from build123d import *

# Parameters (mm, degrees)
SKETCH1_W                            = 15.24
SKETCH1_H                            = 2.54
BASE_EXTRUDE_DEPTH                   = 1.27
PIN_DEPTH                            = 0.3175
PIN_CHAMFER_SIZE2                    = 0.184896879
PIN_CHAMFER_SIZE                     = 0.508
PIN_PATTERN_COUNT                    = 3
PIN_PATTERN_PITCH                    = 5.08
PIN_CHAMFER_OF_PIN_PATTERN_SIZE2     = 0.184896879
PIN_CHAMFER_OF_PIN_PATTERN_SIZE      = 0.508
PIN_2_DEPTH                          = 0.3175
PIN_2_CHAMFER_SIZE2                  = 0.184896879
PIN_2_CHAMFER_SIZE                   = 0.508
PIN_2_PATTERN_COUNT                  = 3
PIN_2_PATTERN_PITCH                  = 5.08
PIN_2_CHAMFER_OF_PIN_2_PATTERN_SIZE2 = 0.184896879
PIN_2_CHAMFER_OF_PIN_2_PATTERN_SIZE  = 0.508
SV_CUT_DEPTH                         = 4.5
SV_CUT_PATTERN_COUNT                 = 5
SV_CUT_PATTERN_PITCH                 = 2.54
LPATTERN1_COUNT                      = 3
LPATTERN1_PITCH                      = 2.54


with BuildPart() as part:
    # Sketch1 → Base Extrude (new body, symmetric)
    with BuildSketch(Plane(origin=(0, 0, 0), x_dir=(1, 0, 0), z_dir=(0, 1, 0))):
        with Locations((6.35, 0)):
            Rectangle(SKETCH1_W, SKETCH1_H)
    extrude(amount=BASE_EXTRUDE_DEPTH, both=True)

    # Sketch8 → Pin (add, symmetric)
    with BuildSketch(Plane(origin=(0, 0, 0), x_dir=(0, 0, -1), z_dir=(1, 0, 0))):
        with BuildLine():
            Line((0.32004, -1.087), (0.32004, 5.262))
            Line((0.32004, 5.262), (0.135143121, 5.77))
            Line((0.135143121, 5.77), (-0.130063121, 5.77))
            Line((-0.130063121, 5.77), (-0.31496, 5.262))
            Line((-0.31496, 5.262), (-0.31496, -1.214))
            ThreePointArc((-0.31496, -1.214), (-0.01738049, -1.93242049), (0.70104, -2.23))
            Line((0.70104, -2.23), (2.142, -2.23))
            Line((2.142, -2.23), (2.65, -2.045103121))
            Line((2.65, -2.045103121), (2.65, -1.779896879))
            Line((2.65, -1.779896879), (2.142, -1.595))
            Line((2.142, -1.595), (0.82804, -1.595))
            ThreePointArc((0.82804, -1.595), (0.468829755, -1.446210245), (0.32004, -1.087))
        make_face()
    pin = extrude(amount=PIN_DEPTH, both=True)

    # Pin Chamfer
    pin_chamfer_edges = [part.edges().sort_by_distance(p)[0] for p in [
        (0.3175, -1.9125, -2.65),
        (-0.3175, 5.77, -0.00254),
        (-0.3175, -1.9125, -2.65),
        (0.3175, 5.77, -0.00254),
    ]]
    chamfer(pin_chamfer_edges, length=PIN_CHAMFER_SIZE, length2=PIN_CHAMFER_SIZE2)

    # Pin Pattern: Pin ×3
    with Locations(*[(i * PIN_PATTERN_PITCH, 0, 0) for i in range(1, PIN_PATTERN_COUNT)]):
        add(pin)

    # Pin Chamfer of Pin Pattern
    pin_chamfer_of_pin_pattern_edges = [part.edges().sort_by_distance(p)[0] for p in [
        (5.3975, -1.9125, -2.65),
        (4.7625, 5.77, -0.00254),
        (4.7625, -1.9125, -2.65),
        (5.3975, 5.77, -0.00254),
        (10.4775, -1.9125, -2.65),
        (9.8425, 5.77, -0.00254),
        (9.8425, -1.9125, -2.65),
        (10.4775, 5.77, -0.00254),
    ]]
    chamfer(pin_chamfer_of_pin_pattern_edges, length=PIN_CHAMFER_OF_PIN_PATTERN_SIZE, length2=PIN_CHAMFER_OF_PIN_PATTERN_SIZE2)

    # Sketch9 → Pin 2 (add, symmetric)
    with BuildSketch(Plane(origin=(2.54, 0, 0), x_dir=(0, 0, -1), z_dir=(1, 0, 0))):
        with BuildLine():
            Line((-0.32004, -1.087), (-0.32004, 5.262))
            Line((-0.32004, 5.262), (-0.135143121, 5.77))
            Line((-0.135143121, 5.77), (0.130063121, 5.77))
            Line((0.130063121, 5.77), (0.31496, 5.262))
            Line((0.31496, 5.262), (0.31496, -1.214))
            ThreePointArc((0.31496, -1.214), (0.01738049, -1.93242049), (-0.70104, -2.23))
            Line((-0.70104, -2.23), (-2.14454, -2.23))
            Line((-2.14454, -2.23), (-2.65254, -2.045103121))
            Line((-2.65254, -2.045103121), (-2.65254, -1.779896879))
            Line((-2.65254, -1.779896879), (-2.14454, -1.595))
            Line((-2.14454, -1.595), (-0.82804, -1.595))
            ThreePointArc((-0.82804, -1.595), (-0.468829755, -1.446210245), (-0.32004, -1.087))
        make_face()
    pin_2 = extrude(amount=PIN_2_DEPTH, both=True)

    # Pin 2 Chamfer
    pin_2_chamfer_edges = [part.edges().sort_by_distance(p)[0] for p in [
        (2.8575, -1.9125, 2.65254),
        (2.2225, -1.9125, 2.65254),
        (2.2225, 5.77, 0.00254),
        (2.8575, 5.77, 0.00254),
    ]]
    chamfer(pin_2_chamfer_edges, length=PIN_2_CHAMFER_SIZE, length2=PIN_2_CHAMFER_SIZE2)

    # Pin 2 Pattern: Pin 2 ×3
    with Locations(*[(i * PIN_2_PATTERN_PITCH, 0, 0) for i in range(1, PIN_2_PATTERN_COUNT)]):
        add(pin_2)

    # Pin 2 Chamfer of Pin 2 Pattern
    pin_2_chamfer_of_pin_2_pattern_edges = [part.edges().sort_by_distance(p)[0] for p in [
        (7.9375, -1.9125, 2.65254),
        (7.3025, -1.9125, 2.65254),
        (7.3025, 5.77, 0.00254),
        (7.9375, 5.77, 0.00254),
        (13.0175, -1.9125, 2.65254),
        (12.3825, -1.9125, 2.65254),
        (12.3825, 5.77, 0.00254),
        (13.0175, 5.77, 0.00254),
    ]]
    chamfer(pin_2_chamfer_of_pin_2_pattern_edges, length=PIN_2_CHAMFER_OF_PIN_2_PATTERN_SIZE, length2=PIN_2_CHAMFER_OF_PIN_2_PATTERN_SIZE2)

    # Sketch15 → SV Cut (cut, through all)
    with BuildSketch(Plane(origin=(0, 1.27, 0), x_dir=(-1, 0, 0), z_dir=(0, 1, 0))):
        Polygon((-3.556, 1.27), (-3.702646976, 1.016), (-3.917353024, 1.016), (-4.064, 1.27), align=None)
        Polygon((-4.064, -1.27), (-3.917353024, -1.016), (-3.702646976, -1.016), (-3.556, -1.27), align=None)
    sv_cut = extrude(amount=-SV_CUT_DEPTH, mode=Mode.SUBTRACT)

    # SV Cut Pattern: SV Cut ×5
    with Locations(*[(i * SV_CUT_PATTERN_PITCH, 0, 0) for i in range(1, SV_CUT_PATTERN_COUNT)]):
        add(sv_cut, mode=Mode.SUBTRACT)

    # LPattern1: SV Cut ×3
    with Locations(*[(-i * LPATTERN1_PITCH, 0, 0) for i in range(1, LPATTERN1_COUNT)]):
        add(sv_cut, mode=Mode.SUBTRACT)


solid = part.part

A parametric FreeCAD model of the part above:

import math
import FreeCAD as App
import Part
import Sketcher

V = App.Vector
Q = App.Units.Quantity


def edges_at(feature, points):
    """Names of the edges that pass closest to the given points."""
    edges = feature.Shape.Edges
    near = lambda p: min(range(len(edges)), key=lambda i: edges[i].distToShape(Part.Vertex(*p))[0])
    return sorted({f"Edge{near(p) + 1}" for p in points})


def add_polygon(sketch, points):
    """Adds a closed chain of lines whose ends are joined by coincident constraints."""
    first, n = sketch.GeometryCount, len(points)
    for a, b in zip(points, points[1:] + points[:1]):
        sketch.addGeometry(Part.LineSegment(App.Vector(*a, 0), App.Vector(*b, 0)), False)
    for i in range(n):
        sketch.addConstraint(Sketcher.Constraint("Coincident", first + i, 2, first + (i + 1) % n, 1))

doc = App.newDocument("Part")
body = doc.addObject("PartDesign::Body", "Body")

# Sketch on XZ plane
sketch1 = body.newObject("Sketcher::SketchObject", "Sketch")
sketch1.AttachmentSupport = (doc.getObject("XZ_Plane"), [""])
sketch1.MapMode = "FlatFace"
add_polygon(sketch1, [(-1.3, -1.3), (-1.3, 1.3), (14, 1.3), (14, -1.3)])  # lines 0-3
sketch1.addConstraint([
    Sketcher.Constraint("Vertical", 0),
    Sketcher.Constraint("Horizontal", 1),
    Sketcher.Constraint("Vertical", 2),
    Sketcher.Constraint("Horizontal", 3),
    Sketcher.Constraint("DistanceX", 1, 1, 1, 2, Q("0.6 in")),
    Sketcher.Constraint("DistanceY", 0, 1, 0, 2, Q("0.1 in")),
    Sketcher.Constraint("DistanceX", 0, 2, -1, 1, Q("0.05 in")),
    Sketcher.Constraint("DistanceY", -1, 1, 0, 2, Q("0.05 in")),
])
pad1 = body.newObject("PartDesign::Pad", "Pad")
pad1.Profile = sketch1
pad1.Length = Q("0.1 in")
pad1.Midplane = True

# Sketch on YZ plane
sketch2 = body.newObject("Sketcher::SketchObject", "Sketch001")
sketch2.AttachmentSupport = (doc.getObject("YZ_Plane"), [""])
sketch2.MapMode = "FlatFace"
sketch2.addGeometry([
    Part.LineSegment(V(-1.09, -0.32, 0), V(5.26, -0.32, 0)),  # 0
    Part.LineSegment(V(5.26, -0.32, 0), V(5.77, -0.14, 0)),  # 1
    Part.LineSegment(V(5.77, -0.14, 0), V(5.77, 0.13, 0)),  # 2
    Part.LineSegment(V(5.77, 0.13, 0), V(5.26, 0.31, 0)),  # 3
    Part.LineSegment(V(5.26, 0.31, 0), V(-1.21, 0.31, 0)),  # 4
    Part.ArcOfCircle(Part.Circle(V(-1.21, -0.7, 0), V(0, 0, 1), 1.02), math.radians(90), math.radians(180)),  # 5
    Part.LineSegment(V(-2.23, -0.7, 0), V(-2.23, -2.14, 0)),  # 6
    Part.LineSegment(V(-2.23, -2.14, 0), V(-2.05, -2.65, 0)),  # 7
    Part.LineSegment(V(-2.05, -2.65, 0), V(-1.78, -2.65, 0)),  # 8
    Part.LineSegment(V(-1.78, -2.65, 0), V(-1.59, -2.14, 0)),  # 9
    Part.LineSegment(V(-1.59, -2.14, 0), V(-1.59, -0.83, 0)),  # 10
    Part.ArcOfCircle(Part.Circle(V(-1.09, -0.83, 0), V(0, 0, 1), 0.51), math.radians(90), math.radians(180)),  # 11
], False)
sketch2.addConstraint([
    Sketcher.Constraint("Coincident", 0, 2, 1, 1),
    Sketcher.Constraint("Coincident", 1, 2, 2, 1),
    Sketcher.Constraint("Coincident", 2, 2, 3, 1),
    Sketcher.Constraint("Coincident", 3, 2, 4, 1),
    Sketcher.Constraint("Tangent", 4, 2, 5, 1),
    Sketcher.Constraint("Tangent", 5, 2, 6, 1),
    Sketcher.Constraint("Coincident", 6, 2, 7, 1),
    Sketcher.Constraint("Coincident", 7, 2, 8, 1),
    Sketcher.Constraint("Coincident", 8, 2, 9, 1),
    Sketcher.Constraint("Coincident", 9, 2, 10, 1),
    Sketcher.Constraint("Tangent", 10, 2, 11, 2),
    Sketcher.Constraint("Tangent", 11, 1, 0, 1),
    Sketcher.Constraint("Horizontal", 0),
    Sketcher.Constraint("Vertical", 2),
    Sketcher.Constraint("Horizontal", 4),
    Sketcher.Constraint("Vertical", 6),
    Sketcher.Constraint("Horizontal", 8),
    Sketcher.Constraint("Vertical", 10),
    Sketcher.Constraint("Perpendicular", 1, 7),
    Sketcher.Constraint("Perpendicular", 3, 9),
    Sketcher.Constraint("Horizontal", 6, 2, 9, 2),
    Sketcher.Constraint("Vertical", 0, 2, 3, 2),
    Sketcher.Constraint("Equal", 8, 2),
    Sketcher.Constraint("Equal", 1, 3),
    Sketcher.Constraint("Equal", 3, 7),
    Sketcher.Constraint("Radius", 5, Q("0.04 in")),
    Sketcher.Constraint("Radius", 11, Q("0.02 in")),
    Sketcher.Constraint("Angle", 1, Q("20 deg")),
    Sketcher.Constraint("DistanceX", 0, 2, 1, 2, Q("0.02 in")),
    Sketcher.Constraint("DistanceX", 5, 3, 11, 3, Q("0.005 in")),
    Sketcher.Constraint("DistanceX", 0, 1, 0, 2, 6.349),
    Sketcher.Constraint("DistanceY", 5, 3, -1, 1, Q("0.0276 in")),
    Sketcher.Constraint("DistanceY", 6, 2, 6, 1, 1.44096),
    Sketcher.Constraint("DistanceX", 5, 3, -1, 1, 1.214),
])
pad2 = body.newObject("PartDesign::Pad", "Pad001")
pad2.Profile = sketch2
pad2.Length = Q("0.025 in")
pad2.Midplane = True
doc.recompute()

chamfer = body.newObject("PartDesign::Chamfer", "Chamfer")
chamfer.Base = (pad2, edges_at(pad2, [
    (0.318, -1.913, -2.65),
    (-0.318, 5.77, -0.003),
    (-0.318, -1.913, -2.65),
    (0.318, 5.77, -0.003),
]))
chamfer.ChamferType = "Two distances"
chamfer.Size = Q("0.02 in")
chamfer.Size2 = 0.184897
doc.recompute()

linearpattern = body.newObject("PartDesign::LinearPattern", "LinearPattern")
linearpattern.Originals = [pad2]
linearpattern.Direction = (doc.getObject("X_Axis"), [""])
linearpattern.Mode = "offset"
linearpattern.Offset = Q("0.2 in")
linearpattern.Occurrences = 3
body.Tip = linearpattern
doc.recompute()

chamfer2 = body.newObject("PartDesign::Chamfer", "Chamfer001")
chamfer2.Base = (linearpattern, edges_at(linearpattern, [
    (5.397, -1.913, -2.65),
    (4.763, 5.77, -0.003),
    (4.763, -1.913, -2.65),
    (5.397, 5.77, -0.003),
    (10.477, -1.913, -2.65),
    (9.842, 5.77, -0.003),
    (9.842, -1.913, -2.65),
    (10.477, 5.77, -0.003),
]))
chamfer2.ChamferType = "Two distances"
chamfer2.Size = Q("0.02 in")
chamfer2.Size2 = 0.184897

# Sketch on YZ plane
sketch3 = body.newObject("Sketcher::SketchObject", "Sketch002")
sketch3.AttachmentSupport = (doc.getObject("YZ_Plane"), [""])
sketch3.MapMode = "FlatFace"
sketch3.AttachmentOffset = App.Placement(V(0, 0, 0.1 * 25.4), App.Rotation())
sketch3.addGeometry([
    Part.LineSegment(V(5.26, 0.32, 0), V(-1.09, 0.32, 0)),  # 0
    Part.ArcOfCircle(Part.Circle(V(-1.09, 0.83, 0), V(0, 0, 1), 0.51), math.radians(180), math.radians(270)),  # 1
    Part.LineSegment(V(-1.59, 0.83, 0), V(-1.59, 2.14, 0)),  # 2
    Part.LineSegment(V(-1.59, 2.14, 0), V(-1.78, 2.65, 0)),  # 3
    Part.LineSegment(V(-1.78, 2.65, 0), V(-2.05, 2.65, 0)),  # 4
    Part.LineSegment(V(-2.05, 2.65, 0), V(-2.23, 2.14, 0)),  # 5
    Part.LineSegment(V(-2.23, 2.14, 0), V(-2.23, 0.7, 0)),  # 6
    Part.ArcOfCircle(Part.Circle(V(-1.21, 0.7, 0), V(0, 0, 1), 1.02), math.radians(180), math.radians(270)),  # 7
    Part.LineSegment(V(-1.21, -0.31, 0), V(5.26, -0.31, 0)),  # 8
    Part.LineSegment(V(5.26, -0.31, 0), V(5.77, -0.13, 0)),  # 9
    Part.LineSegment(V(5.77, -0.13, 0), V(5.77, 0.14, 0)),  # 10
    Part.LineSegment(V(5.77, 0.14, 0), V(5.26, 0.32, 0)),  # 11
], False)
sketch3.addConstraint([
    Sketcher.Constraint("Tangent", 0, 2, 1, 2),
    Sketcher.Constraint("Tangent", 1, 1, 2, 1),
    Sketcher.Constraint("Coincident", 2, 2, 3, 1),
    Sketcher.Constraint("Coincident", 3, 2, 4, 1),
    Sketcher.Constraint("Coincident", 4, 2, 5, 1),
    Sketcher.Constraint("Coincident", 5, 2, 6, 1),
    Sketcher.Constraint("Tangent", 6, 2, 7, 1),
    Sketcher.Constraint("Tangent", 7, 2, 8, 1),
    Sketcher.Constraint("Coincident", 8, 2, 9, 1),
    Sketcher.Constraint("Coincident", 9, 2, 10, 1),
    Sketcher.Constraint("Coincident", 10, 2, 11, 1),
    Sketcher.Constraint("Coincident", 11, 2, 0, 1),
    Sketcher.Constraint("Horizontal", 0),
    Sketcher.Constraint("Vertical", 2),
    Sketcher.Constraint("Horizontal", 4),
    Sketcher.Constraint("Vertical", 6),
    Sketcher.Constraint("Horizontal", 8),
    Sketcher.Constraint("Vertical", 10),
    Sketcher.Constraint("Perpendicular", 3, 9),
    Sketcher.Constraint("Perpendicular", 5, 11),
    Sketcher.Constraint("Horizontal", 2, 2, 5, 2),
    Sketcher.Constraint("Vertical", 8, 2, 11, 2),
    Sketcher.Constraint("Equal", 4, 10),
    Sketcher.Constraint("Equal", 3, 5),
    Sketcher.Constraint("Equal", 5, 9),
    Sketcher.Constraint("Radius", 1, Q("0.02 in")),
    Sketcher.Constraint("Radius", 7, Q("0.04 in")),
    Sketcher.Constraint("Angle", 3, Q("110 deg")),
    Sketcher.Constraint("DistanceY", 2, 2, 3, 2, Q("0.02 in")),
    Sketcher.Constraint("DistanceX", 7, 3, 1, 3, Q("0.005 in")),
    Sketcher.Constraint("DistanceX", 0, 2, 0, 1, 6.349),
    Sketcher.Constraint("DistanceY", 2, 1, 2, 2, 1.3165),
    Sketcher.Constraint("DistanceY", -1, 1, 1, 3, Q("0.0326 in")),
    Sketcher.Constraint("DistanceX", 1, 3, -1, 1, 1.087),
])
pad3 = body.newObject("PartDesign::Pad", "Pad002")
pad3.Profile = sketch3
pad3.Length = Q("0.025 in")
pad3.Midplane = True
doc.recompute()

chamfer3 = body.newObject("PartDesign::Chamfer", "Chamfer002")
chamfer3.Base = (pad3, edges_at(pad3, [
    (2.857, -1.913, 2.653),
    (2.223, -1.913, 2.653),
    (2.223, 5.77, 0.003),
    (2.857, 5.77, 0.003),
]))
chamfer3.ChamferType = "Two distances"
chamfer3.Size = Q("0.02 in")
chamfer3.Size2 = 0.184897
doc.recompute()

linearpattern2 = body.newObject("PartDesign::LinearPattern", "LinearPattern001")
linearpattern2.Originals = [pad3]
linearpattern2.Direction = (doc.getObject("X_Axis"), [""])
linearpattern2.Mode = "offset"
linearpattern2.Offset = Q("0.2 in")
linearpattern2.Occurrences = 3
body.Tip = linearpattern2
doc.recompute()

chamfer4 = body.newObject("PartDesign::Chamfer", "Chamfer003")
chamfer4.Base = (linearpattern2, edges_at(linearpattern2, [
    (7.938, -1.913, 2.653),
    (7.303, -1.913, 2.653),
    (7.303, 5.77, 0.003),
    (7.938, 5.77, 0.003),
    (13.018, -1.913, 2.653),
    (12.383, -1.913, 2.653),
    (12.383, 5.77, 0.003),
    (13.018, 5.77, 0.003),
]))
chamfer4.ChamferType = "Two distances"
chamfer4.Size = Q("0.02 in")
chamfer4.Size2 = 0.184897

# Sketch on XZ plane
sketch4 = body.newObject("Sketcher::SketchObject", "Sketch003")
sketch4.AttachmentSupport = (doc.getObject("XZ_Plane"), [""])
sketch4.MapMode = "FlatFace"
sketch4.AttachmentOffset = App.Placement(V(0, 0, -0.05 * 25.4), App.Rotation())
add_polygon(sketch4, [(3.7, 1.02), (3.56, 1.27), (4.06, 1.27), (3.92, 1.02)])  # lines 0-3
add_polygon(sketch4, [(3.92, -1.02), (4.06, -1.27), (3.56, -1.27), (3.7, -1.02)])  # lines 4-7
sketch4.addConstraint([
    Sketcher.Constraint("Horizontal", 1),
    Sketcher.Constraint("Horizontal", 3),
    Sketcher.Constraint("Horizontal", 5),
    Sketcher.Constraint("Horizontal", 7),
    Sketcher.Constraint("Symmetric", 1, 2, 4, 2, -1),
    Sketcher.Constraint("Symmetric", 3, 2, 6, 2, -1),
    Sketcher.Constraint("Parallel", 0, 4),
    Sketcher.Constraint("Parallel", 2, 6),
    Sketcher.Constraint("Vertical", 0, 2, 5, 2),
    Sketcher.Constraint("Angle", 0, Q("120.000001 deg")),
    Sketcher.Constraint("DistanceX", 1, 1, 1, 2, Q("0.02 in")),
    Sketcher.Constraint("DistanceY", 4, 2, 1, 2, Q("0.1 in")),
    Sketcher.Constraint("DistanceX", -1, 1, 0, 2, Q("0.14 in")),
    Sketcher.Constraint("DistanceY", -1, 1, 2, 2, Q("0.04 in")),
])
pocket1 = body.newObject("PartDesign::Pocket", "Pocket")
pocket1.Profile = sketch4
pocket1.Type = "ThroughAll"
pocket1.Reversed = True
doc.recompute()

linearpattern3 = body.newObject("PartDesign::LinearPattern", "LinearPattern002")
linearpattern3.Originals = [pocket1]
linearpattern3.Direction = (doc.getObject("X_Axis"), [""])
linearpattern3.Mode = "offset"
linearpattern3.Offset = Q("0.1 in")
linearpattern3.Occurrences = 5
body.Tip = linearpattern3
doc.recompute()

linearpattern4 = body.newObject("PartDesign::LinearPattern", "LinearPattern003")
linearpattern4.Originals = [pocket1]
linearpattern4.Direction = (doc.getObject("X_Axis"), [""])
linearpattern4.Mode = "offset"
linearpattern4.Offset = Q("0.1 in")
linearpattern4.Occurrences = 3
linearpattern4.Reversed = True
body.Tip = linearpattern4

doc.recompute()
